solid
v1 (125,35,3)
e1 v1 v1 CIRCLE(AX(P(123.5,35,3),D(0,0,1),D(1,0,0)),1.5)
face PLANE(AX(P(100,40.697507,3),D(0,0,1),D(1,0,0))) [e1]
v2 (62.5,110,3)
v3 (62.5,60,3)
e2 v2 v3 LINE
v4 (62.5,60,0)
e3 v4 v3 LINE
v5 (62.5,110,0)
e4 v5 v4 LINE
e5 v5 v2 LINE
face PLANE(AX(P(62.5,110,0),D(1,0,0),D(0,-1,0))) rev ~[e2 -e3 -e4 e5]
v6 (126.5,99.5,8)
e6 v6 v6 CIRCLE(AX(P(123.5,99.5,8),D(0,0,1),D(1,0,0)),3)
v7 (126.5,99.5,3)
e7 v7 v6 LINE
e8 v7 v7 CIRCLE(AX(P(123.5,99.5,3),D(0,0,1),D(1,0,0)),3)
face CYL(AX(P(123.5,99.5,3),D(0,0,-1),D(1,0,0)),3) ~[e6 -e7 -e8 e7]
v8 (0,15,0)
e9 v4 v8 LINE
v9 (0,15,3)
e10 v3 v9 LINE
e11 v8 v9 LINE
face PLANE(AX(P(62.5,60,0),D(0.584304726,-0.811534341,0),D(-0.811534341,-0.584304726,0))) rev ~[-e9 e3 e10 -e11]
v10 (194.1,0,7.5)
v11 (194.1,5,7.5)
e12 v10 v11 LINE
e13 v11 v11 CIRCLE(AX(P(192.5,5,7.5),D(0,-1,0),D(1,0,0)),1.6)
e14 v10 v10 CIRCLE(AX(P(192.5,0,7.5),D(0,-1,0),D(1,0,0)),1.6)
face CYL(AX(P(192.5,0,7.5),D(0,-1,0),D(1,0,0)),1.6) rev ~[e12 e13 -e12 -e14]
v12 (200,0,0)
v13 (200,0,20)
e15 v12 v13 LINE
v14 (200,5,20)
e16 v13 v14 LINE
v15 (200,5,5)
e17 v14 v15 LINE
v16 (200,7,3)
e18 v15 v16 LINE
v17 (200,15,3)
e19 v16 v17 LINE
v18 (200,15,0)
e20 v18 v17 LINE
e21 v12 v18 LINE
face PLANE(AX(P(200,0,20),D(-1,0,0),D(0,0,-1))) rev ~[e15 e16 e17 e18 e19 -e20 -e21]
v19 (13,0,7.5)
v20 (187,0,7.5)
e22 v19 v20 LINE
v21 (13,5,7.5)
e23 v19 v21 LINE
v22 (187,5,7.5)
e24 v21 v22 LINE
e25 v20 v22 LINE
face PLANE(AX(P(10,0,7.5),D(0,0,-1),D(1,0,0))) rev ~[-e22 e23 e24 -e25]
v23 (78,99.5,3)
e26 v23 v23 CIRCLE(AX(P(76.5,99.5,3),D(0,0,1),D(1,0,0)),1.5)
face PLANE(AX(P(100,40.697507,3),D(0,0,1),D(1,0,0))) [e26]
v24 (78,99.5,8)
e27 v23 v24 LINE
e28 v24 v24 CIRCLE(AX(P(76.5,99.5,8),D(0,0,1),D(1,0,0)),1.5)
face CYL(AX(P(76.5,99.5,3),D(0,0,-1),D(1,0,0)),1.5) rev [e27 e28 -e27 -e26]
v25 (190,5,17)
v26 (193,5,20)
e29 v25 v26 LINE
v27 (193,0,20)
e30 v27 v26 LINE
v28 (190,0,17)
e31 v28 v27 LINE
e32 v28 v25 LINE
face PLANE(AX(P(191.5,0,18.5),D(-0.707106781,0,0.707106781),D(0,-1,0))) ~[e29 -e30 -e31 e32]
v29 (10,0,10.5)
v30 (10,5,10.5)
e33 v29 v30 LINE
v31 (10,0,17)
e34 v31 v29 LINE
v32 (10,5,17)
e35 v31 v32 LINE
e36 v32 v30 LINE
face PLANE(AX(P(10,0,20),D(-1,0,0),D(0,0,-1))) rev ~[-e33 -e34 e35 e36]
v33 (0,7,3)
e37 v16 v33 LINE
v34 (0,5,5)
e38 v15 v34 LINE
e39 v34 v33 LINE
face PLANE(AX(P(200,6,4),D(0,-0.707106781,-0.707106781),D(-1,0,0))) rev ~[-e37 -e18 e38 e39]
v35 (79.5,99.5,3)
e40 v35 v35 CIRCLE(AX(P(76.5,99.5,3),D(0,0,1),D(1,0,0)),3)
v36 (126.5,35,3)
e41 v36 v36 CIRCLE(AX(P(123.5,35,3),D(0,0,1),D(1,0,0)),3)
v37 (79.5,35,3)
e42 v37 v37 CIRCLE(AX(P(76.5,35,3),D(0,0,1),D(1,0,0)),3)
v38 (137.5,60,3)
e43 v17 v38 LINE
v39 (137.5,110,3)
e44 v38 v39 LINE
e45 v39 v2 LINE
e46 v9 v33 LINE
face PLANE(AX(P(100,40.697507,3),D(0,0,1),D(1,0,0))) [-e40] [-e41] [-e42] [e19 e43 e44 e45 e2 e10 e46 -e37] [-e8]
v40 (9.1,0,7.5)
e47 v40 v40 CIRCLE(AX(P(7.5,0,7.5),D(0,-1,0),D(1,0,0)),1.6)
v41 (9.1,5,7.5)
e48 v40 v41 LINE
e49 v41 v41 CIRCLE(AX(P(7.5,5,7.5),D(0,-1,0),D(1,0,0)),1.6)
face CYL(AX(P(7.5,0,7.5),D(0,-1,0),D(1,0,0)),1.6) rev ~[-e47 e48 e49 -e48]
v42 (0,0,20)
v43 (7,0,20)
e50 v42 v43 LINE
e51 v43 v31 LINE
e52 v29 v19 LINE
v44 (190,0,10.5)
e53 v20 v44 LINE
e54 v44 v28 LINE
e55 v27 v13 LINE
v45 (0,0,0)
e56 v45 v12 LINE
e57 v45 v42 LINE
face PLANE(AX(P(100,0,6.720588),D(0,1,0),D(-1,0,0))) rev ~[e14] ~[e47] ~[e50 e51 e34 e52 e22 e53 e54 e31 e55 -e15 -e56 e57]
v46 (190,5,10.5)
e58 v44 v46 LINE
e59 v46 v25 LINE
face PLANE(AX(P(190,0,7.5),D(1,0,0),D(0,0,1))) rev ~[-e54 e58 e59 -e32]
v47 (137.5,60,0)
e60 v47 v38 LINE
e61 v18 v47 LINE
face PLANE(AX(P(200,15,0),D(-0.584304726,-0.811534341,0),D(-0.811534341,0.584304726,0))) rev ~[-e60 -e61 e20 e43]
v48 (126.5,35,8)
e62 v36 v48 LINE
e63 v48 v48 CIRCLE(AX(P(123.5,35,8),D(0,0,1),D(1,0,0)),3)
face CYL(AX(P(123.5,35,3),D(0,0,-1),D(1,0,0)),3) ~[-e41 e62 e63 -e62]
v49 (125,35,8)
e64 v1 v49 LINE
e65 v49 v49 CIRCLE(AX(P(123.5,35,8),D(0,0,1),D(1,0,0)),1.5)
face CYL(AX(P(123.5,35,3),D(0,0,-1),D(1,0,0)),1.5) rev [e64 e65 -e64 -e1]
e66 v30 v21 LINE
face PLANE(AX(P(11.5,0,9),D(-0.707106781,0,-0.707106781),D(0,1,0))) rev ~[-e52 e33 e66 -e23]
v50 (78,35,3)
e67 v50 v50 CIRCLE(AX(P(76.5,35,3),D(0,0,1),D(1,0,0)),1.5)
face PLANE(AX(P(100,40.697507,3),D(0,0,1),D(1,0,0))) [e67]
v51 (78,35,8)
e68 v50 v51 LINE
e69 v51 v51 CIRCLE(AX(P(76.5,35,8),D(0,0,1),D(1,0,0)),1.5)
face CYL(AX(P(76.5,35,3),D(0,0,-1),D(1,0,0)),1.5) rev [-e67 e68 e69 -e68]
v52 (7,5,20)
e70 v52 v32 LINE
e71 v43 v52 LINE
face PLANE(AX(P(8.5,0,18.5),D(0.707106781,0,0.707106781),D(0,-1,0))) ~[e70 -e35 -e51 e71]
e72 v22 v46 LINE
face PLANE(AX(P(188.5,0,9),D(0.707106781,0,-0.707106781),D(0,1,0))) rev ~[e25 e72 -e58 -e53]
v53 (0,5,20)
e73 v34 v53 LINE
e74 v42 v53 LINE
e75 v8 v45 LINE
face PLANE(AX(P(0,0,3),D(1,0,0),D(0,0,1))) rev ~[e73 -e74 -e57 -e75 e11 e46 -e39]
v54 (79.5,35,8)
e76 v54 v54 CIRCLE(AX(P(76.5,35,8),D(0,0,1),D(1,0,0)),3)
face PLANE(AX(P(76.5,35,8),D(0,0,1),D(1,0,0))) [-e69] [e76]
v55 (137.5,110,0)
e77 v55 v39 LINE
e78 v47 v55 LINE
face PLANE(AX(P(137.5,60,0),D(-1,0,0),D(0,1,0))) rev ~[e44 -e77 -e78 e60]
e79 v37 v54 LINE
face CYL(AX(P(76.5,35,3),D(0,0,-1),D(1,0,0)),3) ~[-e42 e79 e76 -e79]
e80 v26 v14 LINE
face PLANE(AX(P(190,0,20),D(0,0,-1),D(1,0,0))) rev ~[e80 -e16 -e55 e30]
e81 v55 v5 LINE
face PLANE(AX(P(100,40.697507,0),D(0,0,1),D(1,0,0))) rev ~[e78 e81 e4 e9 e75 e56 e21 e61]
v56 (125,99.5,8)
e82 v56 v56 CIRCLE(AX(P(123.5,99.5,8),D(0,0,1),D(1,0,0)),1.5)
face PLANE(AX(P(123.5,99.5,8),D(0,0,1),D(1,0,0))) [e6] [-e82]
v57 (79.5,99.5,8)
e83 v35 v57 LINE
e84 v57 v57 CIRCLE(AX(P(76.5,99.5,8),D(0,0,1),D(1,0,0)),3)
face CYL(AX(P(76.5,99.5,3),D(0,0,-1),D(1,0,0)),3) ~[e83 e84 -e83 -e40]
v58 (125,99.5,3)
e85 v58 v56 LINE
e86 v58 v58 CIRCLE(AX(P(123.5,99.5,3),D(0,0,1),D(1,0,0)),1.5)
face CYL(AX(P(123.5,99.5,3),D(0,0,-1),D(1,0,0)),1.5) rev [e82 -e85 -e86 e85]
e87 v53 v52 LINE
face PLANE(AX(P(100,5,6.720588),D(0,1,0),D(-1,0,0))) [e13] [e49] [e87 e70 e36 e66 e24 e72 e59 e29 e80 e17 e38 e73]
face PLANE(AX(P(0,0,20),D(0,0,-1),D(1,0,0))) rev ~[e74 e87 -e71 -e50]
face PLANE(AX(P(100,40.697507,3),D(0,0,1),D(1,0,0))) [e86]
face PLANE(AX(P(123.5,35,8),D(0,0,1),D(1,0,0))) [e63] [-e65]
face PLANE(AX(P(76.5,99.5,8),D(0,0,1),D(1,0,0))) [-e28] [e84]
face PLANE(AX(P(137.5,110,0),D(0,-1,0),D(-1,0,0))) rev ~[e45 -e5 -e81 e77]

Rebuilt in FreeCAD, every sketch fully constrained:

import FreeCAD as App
import Part
import Sketcher
from FreeCAD import Vector


def edges_at(feature, points):
    """Names of the edges that pass closest to the given points."""
    edges = feature.Shape.Edges
    near = lambda p: min(range(len(edges)), key=lambda i: edges[i].distToShape(Part.Vertex(*p))[0])
    return sorted({f"Edge{near(p) + 1}" for p in points})

doc = App.newDocument("Part")
body = doc.addObject("PartDesign::Body", "Body")

# Sketch on XY plane
sketch1 = body.newObject("Sketcher::SketchObject", "Sketch")
sketch1.AttachmentSupport = (doc.getObject("XY_Plane"), [""])
sketch1.MapMode = "FlatFace"
sketch1.addGeometry([
    Part.LineSegment(Vector(0, 0, 0), Vector(200, 0, 0)),  # 0
    Part.LineSegment(Vector(200, 0, 0), Vector(200, 15, 0)),  # 1
    Part.LineSegment(Vector(200, 15, 0), Vector(137.5, 60, 0)),  # 2
    Part.LineSegment(Vector(137.5, 60, 0), Vector(137.5, 110, 0)),  # 3
    Part.LineSegment(Vector(137.5, 110, 0), Vector(62.5, 110, 0)),  # 4
    Part.LineSegment(Vector(62.5, 110, 0), Vector(62.5, 60, 0)),  # 5
    Part.LineSegment(Vector(62.5, 60, 0), Vector(0, 15, 0)),  # 6
    Part.LineSegment(Vector(0, 15, 0), Vector(0, 0, 0)),  # 7
], False)
sketch1.addConstraint([
    Sketcher.Constraint("Coincident", 0, 2, 1, 1),
    Sketcher.Constraint("Coincident", 1, 2, 2, 1),
    Sketcher.Constraint("Coincident", 2, 2, 3, 1),
    Sketcher.Constraint("Coincident", 3, 2, 4, 1),
    Sketcher.Constraint("Coincident", 4, 2, 5, 1),
    Sketcher.Constraint("Coincident", 5, 2, 6, 1),
    Sketcher.Constraint("Coincident", 6, 2, 7, 1),
    Sketcher.Constraint("Coincident", 7, 2, 0, 1),
    Sketcher.Constraint("Horizontal", 0),
    Sketcher.Constraint("Vertical", 1),
    Sketcher.Constraint("Vertical", 3),
    Sketcher.Constraint("Horizontal", 4),
    Sketcher.Constraint("Vertical", 5),
    Sketcher.Constraint("Vertical", 7),
    Sketcher.Constraint("Coincident", 7, 2, -1, 1),
    Sketcher.Constraint("Horizontal", 2, 2, 5, 2),
    Sketcher.Constraint("Horizontal", 1, 2, 6, 2),
    Sketcher.Constraint("Equal", 2, 6),
    Sketcher.Constraint("DistanceX", 0, 1, 0, 2, 200.0),
    Sketcher.Constraint("DistanceX", 4, 2, 4, 1, 75.0),
    Sketcher.Constraint("DistanceY", 1, 1, 1, 2, 15.0),
    Sketcher.Constraint("DistanceY", 3, 1, 3, 2, 50.0),
    Sketcher.Constraint("DistanceY", -1, 1, 2, 2, 60.0),
])
pad1 = body.newObject("PartDesign::Pad", "Pad")
pad1.Profile = sketch1
pad1.Length = 3

# Sketch on XZ plane
sketch2 = body.newObject("Sketcher::SketchObject", "Sketch001")
sketch2.AttachmentSupport = (doc.getObject("XZ_Plane"), [""])
sketch2.MapMode = "FlatFace"
sketch2.addGeometry([
    Part.LineSegment(Vector(0, 20, 0), Vector(0, 3, 0)),  # 0
    Part.LineSegment(Vector(0, 3, 0), Vector(200, 3, 0)),  # 1
    Part.LineSegment(Vector(200, 3, 0), Vector(200, 20, 0)),  # 2
    Part.LineSegment(Vector(200, 20, 0), Vector(190, 20, 0)),  # 3
    Part.LineSegment(Vector(190, 20, 0), Vector(190, 7.5, 0)),  # 4
    Part.LineSegment(Vector(190, 7.5, 0), Vector(10, 7.5, 0)),  # 5
    Part.LineSegment(Vector(10, 7.5, 0), Vector(10, 20, 0)),  # 6
    Part.LineSegment(Vector(10, 20, 0), Vector(0, 20, 0)),  # 7
], False)
sketch2.addConstraint([
    Sketcher.Constraint("Coincident", 0, 2, 1, 1),
    Sketcher.Constraint("Coincident", 1, 2, 2, 1),
    Sketcher.Constraint("Coincident", 2, 2, 3, 1),
    Sketcher.Constraint("Coincident", 3, 2, 4, 1),
    Sketcher.Constraint("Coincident", 4, 2, 5, 1),
    Sketcher.Constraint("Coincident", 5, 2, 6, 1),
    Sketcher.Constraint("Coincident", 6, 2, 7, 1),
    Sketcher.Constraint("Coincident", 7, 2, 0, 1),
    Sketcher.Constraint("Vertical", 0),
    Sketcher.Constraint("Horizontal", 1),
    Sketcher.Constraint("Vertical", 2),
    Sketcher.Constraint("Horizontal", 3),
    Sketcher.Constraint("Vertical", 4),
    Sketcher.Constraint("Horizontal", 5),
    Sketcher.Constraint("Vertical", 6),
    Sketcher.Constraint("Horizontal", 7),
    Sketcher.Constraint("PointOnObject", 0, 2, -2),
    Sketcher.Constraint("Horizontal", 3, 2, 6, 2),
    Sketcher.Constraint("Equal", 3, 7),
    Sketcher.Constraint("DistanceX", 1, 1, 1, 2, 200.0),
    Sketcher.Constraint("DistanceX", 3, 2, 3, 1, 10.0),
    Sketcher.Constraint("DistanceY", 0, 2, 0, 1, 17.0),
    Sketcher.Constraint("DistanceY", 4, 2, 4, 1, 12.5),
    Sketcher.Constraint("DistanceY", -1, 1, 0, 2, 3.0),
])
pad2 = body.newObject("PartDesign::Pad", "Pad001")
pad2.Profile = sketch2
pad2.Length = 5
pad2.Reversed = True

# Sketch on XZ plane
sketch3 = body.newObject("Sketcher::SketchObject", "Sketch002")
sketch3.AttachmentSupport = (doc.getObject("XZ_Plane"), [""])
sketch3.MapMode = "FlatFace"
sketch3.addGeometry([
    Part.Circle(Vector(7.5, 7.5, 0), Vector(0, 0, 1), 1.6),
    Part.Circle(Vector(192.5, 7.5, 0), Vector(0, 0, 1), 1.6),
], False)
sketch3.addConstraint([
    Sketcher.Constraint("Equal", 0, 1),
    Sketcher.Constraint("Horizontal", 0, 3, 1, 3),
    Sketcher.Constraint("Diameter", 0, 3.2),
    Sketcher.Constraint("DistanceX", 0, 3, 1, 3, 185.0),
    Sketcher.Constraint("DistanceX", -1, 1, 0, 3, 7.5),
    Sketcher.Constraint("DistanceY", -1, 1, 0, 3, 7.5),
])
pocket1 = body.newObject("PartDesign::Pocket", "Pocket")
pocket1.Profile = sketch3
pocket1.Type = "ThroughAll"

# Sketch on XY plane
sketch4 = body.newObject("Sketcher::SketchObject", "Sketch003")
sketch4.AttachmentSupport = (doc.getObject("XY_Plane"), [""])
sketch4.MapMode = "FlatFace"
sketch4.AttachmentOffset = App.Placement(Vector(0, 0, 3), App.Rotation())
sketch4.addGeometry([
    Part.Circle(Vector(76.5, 99.5, 0), Vector(0, 0, 1), 3),  # 0
    Part.Circle(Vector(76.5, 99.5, 0), Vector(0, 0, 1), 1.5),  # 1
    Part.Circle(Vector(123.5, 99.5, 0), Vector(0, 0, 1), 3),  # 2
    Part.Circle(Vector(123.5, 99.5, 0), Vector(0, 0, 1), 1.5),  # 3
    Part.Circle(Vector(123.5, 35, 0), Vector(0, 0, 1), 3),  # 4
    Part.Circle(Vector(123.5, 35, 0), Vector(0, 0, 1), 1.5),  # 5
    Part.Circle(Vector(76.5, 35, 0), Vector(0, 0, 1), 3),  # 6
    Part.Circle(Vector(76.5, 35, 0), Vector(0, 0, 1), 1.5),  # 7
], False)
sketch4.addConstraint([
    Sketcher.Constraint("Coincident", 1, 3, 0, 3),
    Sketcher.Constraint("Coincident", 3, 3, 2, 3),
    Sketcher.Constraint("Coincident", 5, 3, 4, 3),
    Sketcher.Constraint("Coincident", 7, 3, 6, 3),
    Sketcher.Constraint("Equal", 0, 2),
    Sketcher.Constraint("Equal", 1, 3),
    Sketcher.Constraint("Equal", 2, 4),
    Sketcher.Constraint("Equal", 3, 5),
    Sketcher.Constraint("Equal", 4, 6),
    Sketcher.Constraint("Equal", 5, 7),
    Sketcher.Constraint("Horizontal", 1, 3, 2, 3),
    Sketcher.Constraint("Horizontal", 5, 3, 6, 3),
    Sketcher.Constraint("Vertical", 3, 3, 4, 3),
    Sketcher.Constraint("Vertical", 1, 3, 6, 3),
    Sketcher.Constraint("Diameter", 0, 6.0),
    Sketcher.Constraint("Diameter", 1, 3.0),
    Sketcher.Constraint("DistanceY", -1, 1, 4, 3, 35.0),
    Sketcher.Constraint("DistanceX", 0, 3, 2, 3, 47.0),
    Sketcher.Constraint("DistanceX", -1, 1, 0, 3, 76.5),
    Sketcher.Constraint("DistanceY", -1, 1, 0, 3, 99.5),
])
pad3 = body.newObject("PartDesign::Pad", "Pad002")
pad3.Profile = sketch4
pad3.Length = 5
doc.recompute()

chamfer = body.newObject("PartDesign::Chamfer", "Chamfer")
chamfer.Base = (pad3, edges_at(pad3, [
    (10, 2.5, 7.5),
    (190, 2.5, 7.5),
    (190, 2.5, 20),
    (10, 2.5, 20),
]))
chamfer.Size = 3
doc.recompute()

chamfer2 = body.newObject("PartDesign::Chamfer", "Chamfer001")
chamfer2.Base = (chamfer, edges_at(chamfer, [(100, 5, 3)]))
chamfer2.Size = 2

doc.recompute()
